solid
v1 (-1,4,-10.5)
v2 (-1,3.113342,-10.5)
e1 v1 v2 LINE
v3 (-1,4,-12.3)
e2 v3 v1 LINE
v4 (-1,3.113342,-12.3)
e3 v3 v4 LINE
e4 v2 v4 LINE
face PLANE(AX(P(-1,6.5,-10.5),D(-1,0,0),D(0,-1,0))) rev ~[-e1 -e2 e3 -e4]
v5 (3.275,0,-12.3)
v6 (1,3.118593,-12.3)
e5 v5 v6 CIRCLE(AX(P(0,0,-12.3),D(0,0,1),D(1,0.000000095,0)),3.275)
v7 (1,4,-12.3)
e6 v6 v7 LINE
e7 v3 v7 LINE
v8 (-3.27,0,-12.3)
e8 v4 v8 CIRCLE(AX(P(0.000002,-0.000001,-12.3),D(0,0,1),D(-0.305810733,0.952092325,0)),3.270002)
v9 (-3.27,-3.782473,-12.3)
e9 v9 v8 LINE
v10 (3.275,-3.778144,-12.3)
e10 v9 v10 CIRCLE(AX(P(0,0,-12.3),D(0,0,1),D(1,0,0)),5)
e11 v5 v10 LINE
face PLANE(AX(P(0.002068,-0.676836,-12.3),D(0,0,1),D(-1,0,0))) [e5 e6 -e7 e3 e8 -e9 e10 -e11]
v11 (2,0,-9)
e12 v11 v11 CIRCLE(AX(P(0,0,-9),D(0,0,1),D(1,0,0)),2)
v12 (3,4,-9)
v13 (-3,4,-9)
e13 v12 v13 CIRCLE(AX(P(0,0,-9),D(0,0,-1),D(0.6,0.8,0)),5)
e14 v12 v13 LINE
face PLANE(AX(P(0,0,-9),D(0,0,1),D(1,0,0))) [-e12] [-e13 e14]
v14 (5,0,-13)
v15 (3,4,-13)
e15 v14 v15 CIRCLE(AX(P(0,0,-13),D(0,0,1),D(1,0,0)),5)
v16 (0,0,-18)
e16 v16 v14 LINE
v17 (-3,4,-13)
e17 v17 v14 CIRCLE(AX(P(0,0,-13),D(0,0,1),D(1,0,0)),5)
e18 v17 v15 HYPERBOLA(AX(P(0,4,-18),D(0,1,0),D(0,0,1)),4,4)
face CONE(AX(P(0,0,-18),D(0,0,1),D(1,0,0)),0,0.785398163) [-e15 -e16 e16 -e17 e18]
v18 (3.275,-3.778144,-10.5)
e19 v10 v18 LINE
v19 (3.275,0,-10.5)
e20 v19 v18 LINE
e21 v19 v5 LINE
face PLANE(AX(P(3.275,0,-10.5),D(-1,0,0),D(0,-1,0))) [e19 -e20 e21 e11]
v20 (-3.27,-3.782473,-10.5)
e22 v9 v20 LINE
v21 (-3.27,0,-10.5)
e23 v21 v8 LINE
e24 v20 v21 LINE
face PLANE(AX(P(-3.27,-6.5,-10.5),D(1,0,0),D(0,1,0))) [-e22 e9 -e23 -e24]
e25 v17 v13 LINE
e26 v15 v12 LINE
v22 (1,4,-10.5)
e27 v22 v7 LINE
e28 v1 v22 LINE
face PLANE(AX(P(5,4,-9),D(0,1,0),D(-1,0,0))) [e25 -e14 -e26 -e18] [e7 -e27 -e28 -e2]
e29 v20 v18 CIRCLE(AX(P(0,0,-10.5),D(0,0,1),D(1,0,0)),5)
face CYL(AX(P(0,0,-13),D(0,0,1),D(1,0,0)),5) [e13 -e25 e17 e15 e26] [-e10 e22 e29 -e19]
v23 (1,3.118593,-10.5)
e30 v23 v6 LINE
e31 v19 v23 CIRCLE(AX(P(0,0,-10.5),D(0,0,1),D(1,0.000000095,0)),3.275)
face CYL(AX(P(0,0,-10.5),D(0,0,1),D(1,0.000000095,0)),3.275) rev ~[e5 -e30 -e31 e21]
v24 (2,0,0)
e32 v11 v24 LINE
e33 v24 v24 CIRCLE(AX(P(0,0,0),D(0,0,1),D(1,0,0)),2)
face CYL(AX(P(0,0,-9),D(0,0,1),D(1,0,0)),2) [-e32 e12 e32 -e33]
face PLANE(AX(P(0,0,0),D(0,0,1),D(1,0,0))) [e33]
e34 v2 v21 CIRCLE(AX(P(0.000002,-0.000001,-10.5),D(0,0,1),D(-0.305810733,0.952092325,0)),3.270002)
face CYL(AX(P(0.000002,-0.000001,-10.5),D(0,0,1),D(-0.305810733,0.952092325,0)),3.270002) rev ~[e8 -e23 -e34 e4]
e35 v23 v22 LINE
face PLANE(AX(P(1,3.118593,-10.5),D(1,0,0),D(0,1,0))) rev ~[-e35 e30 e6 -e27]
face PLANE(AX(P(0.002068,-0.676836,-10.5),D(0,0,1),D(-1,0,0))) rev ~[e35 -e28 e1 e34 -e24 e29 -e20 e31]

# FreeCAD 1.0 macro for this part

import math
import FreeCAD as App
import Part
import Sketcher
from FreeCAD import Vector


def add_polygon(sketch, points):
    """Adds a closed chain of lines whose ends are joined by coincident constraints."""
    first, n = sketch.GeometryCount, len(points)
    for a, b in zip(points, points[1:] + points[:1]):
        sketch.addGeometry(Part.LineSegment(App.Vector(*a, 0), App.Vector(*b, 0)), False)
    for i in range(n):
        sketch.addConstraint(Sketcher.Constraint("Coincident", first + i, 2, first + (i + 1) % n, 1))

doc = App.newDocument("Part")
body = doc.addObject("PartDesign::Body", "Body")

sketch1 = body.newObject("Sketcher::SketchObject", "Sketch")
sketch1.AttachmentSupport = (doc.getObject("XZ_Plane"), [""])
sketch1.MapMode = "FlatFace"
add_polygon(sketch1, [(0, 0), (0, -18), (5, -13), (5, -9), (2, -9), (2, 0)])
sketch1.addConstraint([
    Sketcher.Constraint("Vertical", 0),
    Sketcher.Constraint("Vertical", 2),
    Sketcher.Constraint("Horizontal", 3),
    Sketcher.Constraint("Vertical", 4),
    Sketcher.Constraint("Horizontal", 5),
    Sketcher.Constraint("Coincident", 5, 2, -1, 1),
    Sketcher.Constraint("DistanceX", 3, 2, 3, 1, 3.0),
    Sketcher.Constraint("DistanceX", 5, 2, 5, 1, 2.0),
    Sketcher.Constraint("DistanceY", 0, 2, 0, 1, 18.0),
    Sketcher.Constraint("DistanceY", 2, 1, 2, 2, 4.0),
    Sketcher.Constraint("DistanceY", 4, 1, 4, 2, 9.0),
])
revolution = body.newObject("PartDesign::Revolution", "Revolution")
revolution.Profile = sketch1
revolution.ReferenceAxis = (sketch1, ["V_Axis"])
revolution.Angle = 360

sketch2 = body.newObject("Sketcher::SketchObject", "Sketch001")
sketch2.AttachmentSupport = (doc.getObject("XY_Plane"), [""])
sketch2.MapMode = "FlatFace"
sketch2.AttachmentOffset = App.Placement(Vector(0, 0, -9), App.Rotation())
add_polygon(sketch2, [(5, 4), (5, 5.5), (-5, 5.5), (-5, 4)])
sketch2.addConstraint([
    Sketcher.Constraint("Vertical", 0),
    Sketcher.Constraint("Horizontal", 1),
    Sketcher.Constraint("Vertical", 2),
    Sketcher.Constraint("Horizontal", 3),
    Sketcher.Constraint("DistanceX", 1, 2, 1, 1, 10.0),
    Sketcher.Constraint("DistanceY", 0, 1, 0, 2, 1.5),
    Sketcher.Constraint("DistanceX", -1, 1, 0, 2, 5.0),
    Sketcher.Constraint("DistanceY", -1, 1, 2, 2, 4.0),
])
pocket1 = body.newObject("PartDesign::Pocket", "Pocket")
pocket1.Profile = sketch2
pocket1.Type = "ThroughAll"

sketch3 = body.newObject("Sketcher::SketchObject", "Sketch002")
sketch3.AttachmentSupport = (doc.getObject("XY_Plane"), [""])
sketch3.MapMode = "FlatFace"
sketch3.AttachmentOffset = App.Placement(Vector(0, 0, -10.5), App.Rotation())
sketch3.addGeometry([
    Part.ArcOfCircle(Part.Circle(Vector(0, 0, 0), Vector(0, 0, 1), 3.3), math.radians(0), math.radians(72)),
    Part.LineSegment(Vector(1, 3.1, 0), Vector(1, 6.5, 0)),
    Part.LineSegment(Vector(1, 6.5, 0), Vector(-1, 6.5, 0)),
    Part.LineSegment(Vector(-1, 6.5, 0), Vector(-1, 3.1, 0)),
    Part.ArcOfCircle(Part.Circle(Vector(0, 0, 0), Vector(0, 0, 1), 3.3), math.radians(108), math.radians(180)),
    Part.LineSegment(Vector(-3.3, 0, 0), Vector(-3.3, -6.5, 0)),
    Part.LineSegment(Vector(-3.3, -6.5, 0), Vector(3.3, -6.5, 0)),
    Part.LineSegment(Vector(3.3, -6.5, 0), Vector(3.3, 0, 0)),
], False)
sketch3.addConstraint([
    Sketcher.Constraint("Coincident", 0, 2, 1, 1),
    Sketcher.Constraint("Coincident", 1, 2, 2, 1),
    Sketcher.Constraint("Coincident", 2, 2, 3, 1),
    Sketcher.Constraint("Coincident", 3, 2, 4, 1),
    Sketcher.Constraint("Tangent", 4, 2, 5, 1),
    Sketcher.Constraint("Coincident", 5, 2, 6, 1),
    Sketcher.Constraint("Coincident", 6, 2, 7, 1),
    Sketcher.Constraint("Tangent", 7, 2, 0, 1),
    Sketcher.Constraint("Vertical", 1),
    Sketcher.Constraint("Horizontal", 2),
    Sketcher.Constraint("Vertical", 3),
    Sketcher.Constraint("Vertical", 5),
    Sketcher.Constraint("Horizontal", 6),
    Sketcher.Constraint("Vertical", 7),
    Sketcher.Constraint("Coincident", 0, 3, -1, 1),
    Sketcher.Constraint("Coincident", 4, 3, -1, 1),
    Sketcher.Constraint("DistanceX", 2, 2, 2, 1, 2.0),
    Sketcher.Constraint("Radius", 4, 3.270002),
    Sketcher.Constraint("DistanceY", 5, 2, 5, 1, 6.5),
    Sketcher.Constraint("DistanceX", -1, 1, 0, 2, 1.0),
    Sketcher.Constraint("Radius", 0, 3.275),
    Sketcher.Constraint("DistanceY", -1, 1, 1, 2, 6.5),
])
pocket2 = body.newObject("PartDesign::Pocket", "Pocket001")
pocket2.Profile = sketch3
pocket2.Length = 1.8

doc.recompute()
